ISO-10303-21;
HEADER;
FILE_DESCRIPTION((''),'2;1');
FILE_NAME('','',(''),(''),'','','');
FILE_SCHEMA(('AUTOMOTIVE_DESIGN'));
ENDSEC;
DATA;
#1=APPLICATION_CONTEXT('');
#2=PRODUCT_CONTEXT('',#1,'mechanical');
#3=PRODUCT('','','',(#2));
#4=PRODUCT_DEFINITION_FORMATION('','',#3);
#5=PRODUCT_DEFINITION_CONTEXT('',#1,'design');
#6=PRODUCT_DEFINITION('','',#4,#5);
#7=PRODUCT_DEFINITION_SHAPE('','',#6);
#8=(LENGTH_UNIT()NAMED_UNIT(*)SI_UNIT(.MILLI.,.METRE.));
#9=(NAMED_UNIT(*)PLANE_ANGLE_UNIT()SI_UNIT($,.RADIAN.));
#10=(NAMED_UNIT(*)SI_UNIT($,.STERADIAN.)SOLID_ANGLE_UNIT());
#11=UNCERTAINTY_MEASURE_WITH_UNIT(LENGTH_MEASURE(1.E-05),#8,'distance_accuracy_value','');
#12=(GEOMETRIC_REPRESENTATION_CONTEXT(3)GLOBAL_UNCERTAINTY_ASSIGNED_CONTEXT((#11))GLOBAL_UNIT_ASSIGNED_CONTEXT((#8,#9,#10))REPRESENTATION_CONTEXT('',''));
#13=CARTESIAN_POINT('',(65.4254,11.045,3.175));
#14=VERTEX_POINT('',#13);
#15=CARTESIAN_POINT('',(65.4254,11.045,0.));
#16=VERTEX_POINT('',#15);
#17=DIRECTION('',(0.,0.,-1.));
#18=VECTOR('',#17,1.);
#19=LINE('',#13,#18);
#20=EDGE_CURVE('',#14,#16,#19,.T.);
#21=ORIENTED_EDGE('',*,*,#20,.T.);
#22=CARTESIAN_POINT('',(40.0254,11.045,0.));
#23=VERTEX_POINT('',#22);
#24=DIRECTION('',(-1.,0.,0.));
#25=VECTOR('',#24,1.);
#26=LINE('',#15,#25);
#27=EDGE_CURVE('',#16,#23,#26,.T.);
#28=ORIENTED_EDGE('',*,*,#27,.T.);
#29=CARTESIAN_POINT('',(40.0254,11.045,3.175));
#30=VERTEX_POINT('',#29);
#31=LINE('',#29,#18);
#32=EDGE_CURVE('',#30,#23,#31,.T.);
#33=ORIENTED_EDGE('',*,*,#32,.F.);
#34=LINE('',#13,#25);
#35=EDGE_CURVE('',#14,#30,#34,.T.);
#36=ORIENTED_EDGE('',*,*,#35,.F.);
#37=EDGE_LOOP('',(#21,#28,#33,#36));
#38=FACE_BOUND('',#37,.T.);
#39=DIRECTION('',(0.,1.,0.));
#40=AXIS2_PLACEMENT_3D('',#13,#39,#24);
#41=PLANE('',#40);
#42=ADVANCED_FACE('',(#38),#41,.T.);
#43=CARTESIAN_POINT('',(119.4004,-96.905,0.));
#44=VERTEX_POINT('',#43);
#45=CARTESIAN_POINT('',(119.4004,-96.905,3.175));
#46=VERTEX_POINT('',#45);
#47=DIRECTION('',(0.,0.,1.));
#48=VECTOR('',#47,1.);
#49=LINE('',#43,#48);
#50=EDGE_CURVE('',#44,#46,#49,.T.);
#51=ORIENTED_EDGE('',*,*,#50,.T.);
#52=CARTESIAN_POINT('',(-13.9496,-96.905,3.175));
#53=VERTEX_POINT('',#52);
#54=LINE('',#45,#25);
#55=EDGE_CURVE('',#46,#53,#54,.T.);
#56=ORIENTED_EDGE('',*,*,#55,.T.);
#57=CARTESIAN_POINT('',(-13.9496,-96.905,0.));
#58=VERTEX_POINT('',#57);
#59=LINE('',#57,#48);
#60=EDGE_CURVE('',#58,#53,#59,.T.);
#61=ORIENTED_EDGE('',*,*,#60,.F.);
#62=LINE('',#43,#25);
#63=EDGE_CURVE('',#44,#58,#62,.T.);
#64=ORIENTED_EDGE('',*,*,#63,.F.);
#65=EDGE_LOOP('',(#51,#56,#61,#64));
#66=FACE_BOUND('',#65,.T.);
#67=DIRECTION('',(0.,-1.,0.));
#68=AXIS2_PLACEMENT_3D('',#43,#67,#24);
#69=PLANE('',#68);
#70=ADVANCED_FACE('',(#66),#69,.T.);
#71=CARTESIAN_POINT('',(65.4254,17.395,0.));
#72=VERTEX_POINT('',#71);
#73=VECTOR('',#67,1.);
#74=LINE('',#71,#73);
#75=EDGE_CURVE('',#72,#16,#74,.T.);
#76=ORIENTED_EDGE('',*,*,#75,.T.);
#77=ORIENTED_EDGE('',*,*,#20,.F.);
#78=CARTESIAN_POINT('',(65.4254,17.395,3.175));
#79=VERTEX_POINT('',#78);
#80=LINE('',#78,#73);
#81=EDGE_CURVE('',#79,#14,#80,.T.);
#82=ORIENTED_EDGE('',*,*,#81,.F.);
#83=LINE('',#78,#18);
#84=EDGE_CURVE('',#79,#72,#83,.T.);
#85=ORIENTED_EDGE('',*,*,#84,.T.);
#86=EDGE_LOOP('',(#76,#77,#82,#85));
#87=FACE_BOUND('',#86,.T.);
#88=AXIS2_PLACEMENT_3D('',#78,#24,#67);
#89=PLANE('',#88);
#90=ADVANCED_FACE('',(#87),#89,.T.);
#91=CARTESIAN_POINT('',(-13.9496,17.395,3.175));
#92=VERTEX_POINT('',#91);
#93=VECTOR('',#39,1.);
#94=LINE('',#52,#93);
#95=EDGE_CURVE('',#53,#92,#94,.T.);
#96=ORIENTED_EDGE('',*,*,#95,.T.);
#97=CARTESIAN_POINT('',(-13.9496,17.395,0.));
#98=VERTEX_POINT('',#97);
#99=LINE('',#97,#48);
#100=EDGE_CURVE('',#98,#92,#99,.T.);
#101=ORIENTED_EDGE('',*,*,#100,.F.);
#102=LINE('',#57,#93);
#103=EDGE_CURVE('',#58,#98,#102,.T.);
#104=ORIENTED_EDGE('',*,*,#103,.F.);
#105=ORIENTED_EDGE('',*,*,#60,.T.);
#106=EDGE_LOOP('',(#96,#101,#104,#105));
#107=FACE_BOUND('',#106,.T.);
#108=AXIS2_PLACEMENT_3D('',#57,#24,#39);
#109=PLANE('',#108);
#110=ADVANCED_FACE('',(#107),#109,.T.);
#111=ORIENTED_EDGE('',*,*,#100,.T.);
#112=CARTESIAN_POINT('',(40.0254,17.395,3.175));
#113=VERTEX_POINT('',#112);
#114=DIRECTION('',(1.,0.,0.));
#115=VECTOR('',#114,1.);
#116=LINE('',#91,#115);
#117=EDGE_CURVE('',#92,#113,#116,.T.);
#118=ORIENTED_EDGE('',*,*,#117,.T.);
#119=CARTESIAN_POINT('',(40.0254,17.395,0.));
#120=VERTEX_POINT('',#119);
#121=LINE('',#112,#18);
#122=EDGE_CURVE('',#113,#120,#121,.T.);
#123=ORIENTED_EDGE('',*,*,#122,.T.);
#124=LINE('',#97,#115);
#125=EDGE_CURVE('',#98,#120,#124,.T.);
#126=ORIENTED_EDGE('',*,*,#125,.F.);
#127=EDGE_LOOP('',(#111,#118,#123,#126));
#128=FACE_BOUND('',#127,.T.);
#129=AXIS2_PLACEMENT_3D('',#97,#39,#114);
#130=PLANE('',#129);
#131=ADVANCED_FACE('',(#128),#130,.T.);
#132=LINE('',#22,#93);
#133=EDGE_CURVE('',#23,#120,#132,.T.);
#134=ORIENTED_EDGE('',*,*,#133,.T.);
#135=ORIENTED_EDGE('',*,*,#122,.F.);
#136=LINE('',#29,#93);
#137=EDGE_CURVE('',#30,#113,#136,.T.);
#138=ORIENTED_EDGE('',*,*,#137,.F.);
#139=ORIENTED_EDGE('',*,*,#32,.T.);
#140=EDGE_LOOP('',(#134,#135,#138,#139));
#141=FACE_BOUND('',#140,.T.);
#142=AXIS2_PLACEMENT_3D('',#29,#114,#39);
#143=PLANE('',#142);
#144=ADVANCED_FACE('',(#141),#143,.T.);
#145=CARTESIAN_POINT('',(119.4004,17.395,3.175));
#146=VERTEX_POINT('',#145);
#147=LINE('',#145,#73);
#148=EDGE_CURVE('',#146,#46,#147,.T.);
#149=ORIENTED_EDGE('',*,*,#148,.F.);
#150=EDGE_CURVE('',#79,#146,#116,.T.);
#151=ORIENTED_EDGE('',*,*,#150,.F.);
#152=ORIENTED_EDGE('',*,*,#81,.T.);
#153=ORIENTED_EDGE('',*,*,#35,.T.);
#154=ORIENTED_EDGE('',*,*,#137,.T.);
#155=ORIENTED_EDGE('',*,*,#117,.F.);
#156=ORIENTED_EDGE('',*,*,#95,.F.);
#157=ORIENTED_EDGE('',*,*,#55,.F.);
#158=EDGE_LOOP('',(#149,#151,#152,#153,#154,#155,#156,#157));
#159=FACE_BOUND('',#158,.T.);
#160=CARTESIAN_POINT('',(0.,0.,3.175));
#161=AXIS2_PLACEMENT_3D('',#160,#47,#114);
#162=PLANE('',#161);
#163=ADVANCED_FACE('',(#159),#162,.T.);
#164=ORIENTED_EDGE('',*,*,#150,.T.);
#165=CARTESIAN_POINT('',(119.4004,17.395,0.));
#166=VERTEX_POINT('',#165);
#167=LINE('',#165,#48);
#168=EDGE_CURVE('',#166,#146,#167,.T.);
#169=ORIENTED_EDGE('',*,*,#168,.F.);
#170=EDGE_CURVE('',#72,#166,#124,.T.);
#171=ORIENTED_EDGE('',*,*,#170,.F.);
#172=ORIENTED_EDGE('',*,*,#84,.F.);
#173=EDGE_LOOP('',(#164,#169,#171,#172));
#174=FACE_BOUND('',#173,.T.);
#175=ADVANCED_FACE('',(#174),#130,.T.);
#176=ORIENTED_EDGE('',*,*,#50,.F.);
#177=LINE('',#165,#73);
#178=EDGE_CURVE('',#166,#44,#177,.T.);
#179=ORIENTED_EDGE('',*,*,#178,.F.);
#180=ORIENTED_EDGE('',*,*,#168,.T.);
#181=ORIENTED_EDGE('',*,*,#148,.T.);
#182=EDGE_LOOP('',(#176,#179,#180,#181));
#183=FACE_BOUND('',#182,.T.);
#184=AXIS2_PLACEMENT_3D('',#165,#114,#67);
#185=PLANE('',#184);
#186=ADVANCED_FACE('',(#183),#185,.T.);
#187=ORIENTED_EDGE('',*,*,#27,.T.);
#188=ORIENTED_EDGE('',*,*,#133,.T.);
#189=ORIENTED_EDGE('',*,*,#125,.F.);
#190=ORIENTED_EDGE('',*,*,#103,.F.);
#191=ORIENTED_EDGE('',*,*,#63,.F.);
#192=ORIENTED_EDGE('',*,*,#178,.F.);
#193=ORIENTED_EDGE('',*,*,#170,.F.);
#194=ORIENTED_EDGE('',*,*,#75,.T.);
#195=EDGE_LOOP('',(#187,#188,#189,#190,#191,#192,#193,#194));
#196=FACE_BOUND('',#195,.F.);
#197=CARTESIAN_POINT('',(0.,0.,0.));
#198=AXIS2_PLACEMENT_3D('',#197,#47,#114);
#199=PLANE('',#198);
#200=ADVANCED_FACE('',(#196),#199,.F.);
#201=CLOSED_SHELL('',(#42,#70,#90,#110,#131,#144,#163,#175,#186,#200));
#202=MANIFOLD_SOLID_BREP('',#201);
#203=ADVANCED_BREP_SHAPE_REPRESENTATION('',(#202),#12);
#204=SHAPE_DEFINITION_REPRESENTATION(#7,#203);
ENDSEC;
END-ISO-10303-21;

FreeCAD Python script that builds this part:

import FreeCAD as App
import Part
import Sketcher

V = App.Vector
Q = App.Units.Quantity


def add_polygon(sketch, points):
    """Adds a closed chain of lines whose ends are joined by coincident constraints."""
    first, n = sketch.GeometryCount, len(points)
    for a, b in zip(points, points[1:] + points[:1]):
        sketch.addGeometry(Part.LineSegment(App.Vector(*a, 0), App.Vector(*b, 0)), False)
    for i in range(n):
        sketch.addConstraint(Sketcher.Constraint("Coincident", first + i, 2, first + (i + 1) % n, 1))

doc = App.newDocument("Part")
body = doc.addObject("PartDesign::Body", "Body")

sketch1 = body.newObject("Sketcher::SketchObject", "Sketch")
sketch1.AttachmentSupport = (doc.getObject("XY_Plane"), [""])
sketch1.MapMode = "FlatFace"
add_polygon(sketch1, [(119, 17), (-14, 17), (-14, -97), (119, -97)])
sketch1.addConstraint([
    Sketcher.Constraint("Horizontal", 0),
    Sketcher.Constraint("Vertical", 1),
    Sketcher.Constraint("Horizontal", 2),
    Sketcher.Constraint("Vertical", 3),
    Sketcher.Constraint("DistanceY", 1, 2, 1, 1, Q("4.5 in")),
    Sketcher.Constraint("DistanceX", 0, 2, 0, 1, Q("5.25 in")),
    Sketcher.Constraint("DistanceX", 0, 2, -1, 1, Q("0.5492 in")),
    Sketcher.Constraint("DistanceY", -1, 1, 0, 2, 17.395),
])
pad1 = body.newObject("PartDesign::Pad", "Pad")
pad1.Profile = sketch1
pad1.Length = Q("0.125 in")

sketch2 = body.newObject("Sketcher::SketchObject", "Sketch001")
sketch2.AttachmentSupport = (doc.getObject("XY_Plane"), [""])
sketch2.MapMode = "FlatFace"
sketch2.AttachmentOffset = App.Placement(V(0, 0, 0.125 * 25.4), App.Rotation())
add_polygon(sketch2, [(65, 17), (40, 17), (40, 11), (65, 11)])
sketch2.addConstraint([
    Sketcher.Constraint("Horizontal", 0),
    Sketcher.Constraint("Vertical", 1),
    Sketcher.Constraint("Horizontal", 2),
    Sketcher.Constraint("Vertical", 3),
    Sketcher.Constraint("DistanceX", 0, 2, 0, 1, Q("1 in")),
    Sketcher.Constraint("DistanceY", 1, 2, 1, 1, Q("0.25 in")),
    Sketcher.Constraint("DistanceX", -1, 1, 0, 2, Q("1.5758 in")),
    Sketcher.Constraint("DistanceY", -1, 1, 0, 2, 17.395),
])
pocket1 = body.newObject("PartDesign::Pocket", "Pocket")
pocket1.Profile = sketch2
pocket1.Length = Q("0.125 in")

doc.recompute()
